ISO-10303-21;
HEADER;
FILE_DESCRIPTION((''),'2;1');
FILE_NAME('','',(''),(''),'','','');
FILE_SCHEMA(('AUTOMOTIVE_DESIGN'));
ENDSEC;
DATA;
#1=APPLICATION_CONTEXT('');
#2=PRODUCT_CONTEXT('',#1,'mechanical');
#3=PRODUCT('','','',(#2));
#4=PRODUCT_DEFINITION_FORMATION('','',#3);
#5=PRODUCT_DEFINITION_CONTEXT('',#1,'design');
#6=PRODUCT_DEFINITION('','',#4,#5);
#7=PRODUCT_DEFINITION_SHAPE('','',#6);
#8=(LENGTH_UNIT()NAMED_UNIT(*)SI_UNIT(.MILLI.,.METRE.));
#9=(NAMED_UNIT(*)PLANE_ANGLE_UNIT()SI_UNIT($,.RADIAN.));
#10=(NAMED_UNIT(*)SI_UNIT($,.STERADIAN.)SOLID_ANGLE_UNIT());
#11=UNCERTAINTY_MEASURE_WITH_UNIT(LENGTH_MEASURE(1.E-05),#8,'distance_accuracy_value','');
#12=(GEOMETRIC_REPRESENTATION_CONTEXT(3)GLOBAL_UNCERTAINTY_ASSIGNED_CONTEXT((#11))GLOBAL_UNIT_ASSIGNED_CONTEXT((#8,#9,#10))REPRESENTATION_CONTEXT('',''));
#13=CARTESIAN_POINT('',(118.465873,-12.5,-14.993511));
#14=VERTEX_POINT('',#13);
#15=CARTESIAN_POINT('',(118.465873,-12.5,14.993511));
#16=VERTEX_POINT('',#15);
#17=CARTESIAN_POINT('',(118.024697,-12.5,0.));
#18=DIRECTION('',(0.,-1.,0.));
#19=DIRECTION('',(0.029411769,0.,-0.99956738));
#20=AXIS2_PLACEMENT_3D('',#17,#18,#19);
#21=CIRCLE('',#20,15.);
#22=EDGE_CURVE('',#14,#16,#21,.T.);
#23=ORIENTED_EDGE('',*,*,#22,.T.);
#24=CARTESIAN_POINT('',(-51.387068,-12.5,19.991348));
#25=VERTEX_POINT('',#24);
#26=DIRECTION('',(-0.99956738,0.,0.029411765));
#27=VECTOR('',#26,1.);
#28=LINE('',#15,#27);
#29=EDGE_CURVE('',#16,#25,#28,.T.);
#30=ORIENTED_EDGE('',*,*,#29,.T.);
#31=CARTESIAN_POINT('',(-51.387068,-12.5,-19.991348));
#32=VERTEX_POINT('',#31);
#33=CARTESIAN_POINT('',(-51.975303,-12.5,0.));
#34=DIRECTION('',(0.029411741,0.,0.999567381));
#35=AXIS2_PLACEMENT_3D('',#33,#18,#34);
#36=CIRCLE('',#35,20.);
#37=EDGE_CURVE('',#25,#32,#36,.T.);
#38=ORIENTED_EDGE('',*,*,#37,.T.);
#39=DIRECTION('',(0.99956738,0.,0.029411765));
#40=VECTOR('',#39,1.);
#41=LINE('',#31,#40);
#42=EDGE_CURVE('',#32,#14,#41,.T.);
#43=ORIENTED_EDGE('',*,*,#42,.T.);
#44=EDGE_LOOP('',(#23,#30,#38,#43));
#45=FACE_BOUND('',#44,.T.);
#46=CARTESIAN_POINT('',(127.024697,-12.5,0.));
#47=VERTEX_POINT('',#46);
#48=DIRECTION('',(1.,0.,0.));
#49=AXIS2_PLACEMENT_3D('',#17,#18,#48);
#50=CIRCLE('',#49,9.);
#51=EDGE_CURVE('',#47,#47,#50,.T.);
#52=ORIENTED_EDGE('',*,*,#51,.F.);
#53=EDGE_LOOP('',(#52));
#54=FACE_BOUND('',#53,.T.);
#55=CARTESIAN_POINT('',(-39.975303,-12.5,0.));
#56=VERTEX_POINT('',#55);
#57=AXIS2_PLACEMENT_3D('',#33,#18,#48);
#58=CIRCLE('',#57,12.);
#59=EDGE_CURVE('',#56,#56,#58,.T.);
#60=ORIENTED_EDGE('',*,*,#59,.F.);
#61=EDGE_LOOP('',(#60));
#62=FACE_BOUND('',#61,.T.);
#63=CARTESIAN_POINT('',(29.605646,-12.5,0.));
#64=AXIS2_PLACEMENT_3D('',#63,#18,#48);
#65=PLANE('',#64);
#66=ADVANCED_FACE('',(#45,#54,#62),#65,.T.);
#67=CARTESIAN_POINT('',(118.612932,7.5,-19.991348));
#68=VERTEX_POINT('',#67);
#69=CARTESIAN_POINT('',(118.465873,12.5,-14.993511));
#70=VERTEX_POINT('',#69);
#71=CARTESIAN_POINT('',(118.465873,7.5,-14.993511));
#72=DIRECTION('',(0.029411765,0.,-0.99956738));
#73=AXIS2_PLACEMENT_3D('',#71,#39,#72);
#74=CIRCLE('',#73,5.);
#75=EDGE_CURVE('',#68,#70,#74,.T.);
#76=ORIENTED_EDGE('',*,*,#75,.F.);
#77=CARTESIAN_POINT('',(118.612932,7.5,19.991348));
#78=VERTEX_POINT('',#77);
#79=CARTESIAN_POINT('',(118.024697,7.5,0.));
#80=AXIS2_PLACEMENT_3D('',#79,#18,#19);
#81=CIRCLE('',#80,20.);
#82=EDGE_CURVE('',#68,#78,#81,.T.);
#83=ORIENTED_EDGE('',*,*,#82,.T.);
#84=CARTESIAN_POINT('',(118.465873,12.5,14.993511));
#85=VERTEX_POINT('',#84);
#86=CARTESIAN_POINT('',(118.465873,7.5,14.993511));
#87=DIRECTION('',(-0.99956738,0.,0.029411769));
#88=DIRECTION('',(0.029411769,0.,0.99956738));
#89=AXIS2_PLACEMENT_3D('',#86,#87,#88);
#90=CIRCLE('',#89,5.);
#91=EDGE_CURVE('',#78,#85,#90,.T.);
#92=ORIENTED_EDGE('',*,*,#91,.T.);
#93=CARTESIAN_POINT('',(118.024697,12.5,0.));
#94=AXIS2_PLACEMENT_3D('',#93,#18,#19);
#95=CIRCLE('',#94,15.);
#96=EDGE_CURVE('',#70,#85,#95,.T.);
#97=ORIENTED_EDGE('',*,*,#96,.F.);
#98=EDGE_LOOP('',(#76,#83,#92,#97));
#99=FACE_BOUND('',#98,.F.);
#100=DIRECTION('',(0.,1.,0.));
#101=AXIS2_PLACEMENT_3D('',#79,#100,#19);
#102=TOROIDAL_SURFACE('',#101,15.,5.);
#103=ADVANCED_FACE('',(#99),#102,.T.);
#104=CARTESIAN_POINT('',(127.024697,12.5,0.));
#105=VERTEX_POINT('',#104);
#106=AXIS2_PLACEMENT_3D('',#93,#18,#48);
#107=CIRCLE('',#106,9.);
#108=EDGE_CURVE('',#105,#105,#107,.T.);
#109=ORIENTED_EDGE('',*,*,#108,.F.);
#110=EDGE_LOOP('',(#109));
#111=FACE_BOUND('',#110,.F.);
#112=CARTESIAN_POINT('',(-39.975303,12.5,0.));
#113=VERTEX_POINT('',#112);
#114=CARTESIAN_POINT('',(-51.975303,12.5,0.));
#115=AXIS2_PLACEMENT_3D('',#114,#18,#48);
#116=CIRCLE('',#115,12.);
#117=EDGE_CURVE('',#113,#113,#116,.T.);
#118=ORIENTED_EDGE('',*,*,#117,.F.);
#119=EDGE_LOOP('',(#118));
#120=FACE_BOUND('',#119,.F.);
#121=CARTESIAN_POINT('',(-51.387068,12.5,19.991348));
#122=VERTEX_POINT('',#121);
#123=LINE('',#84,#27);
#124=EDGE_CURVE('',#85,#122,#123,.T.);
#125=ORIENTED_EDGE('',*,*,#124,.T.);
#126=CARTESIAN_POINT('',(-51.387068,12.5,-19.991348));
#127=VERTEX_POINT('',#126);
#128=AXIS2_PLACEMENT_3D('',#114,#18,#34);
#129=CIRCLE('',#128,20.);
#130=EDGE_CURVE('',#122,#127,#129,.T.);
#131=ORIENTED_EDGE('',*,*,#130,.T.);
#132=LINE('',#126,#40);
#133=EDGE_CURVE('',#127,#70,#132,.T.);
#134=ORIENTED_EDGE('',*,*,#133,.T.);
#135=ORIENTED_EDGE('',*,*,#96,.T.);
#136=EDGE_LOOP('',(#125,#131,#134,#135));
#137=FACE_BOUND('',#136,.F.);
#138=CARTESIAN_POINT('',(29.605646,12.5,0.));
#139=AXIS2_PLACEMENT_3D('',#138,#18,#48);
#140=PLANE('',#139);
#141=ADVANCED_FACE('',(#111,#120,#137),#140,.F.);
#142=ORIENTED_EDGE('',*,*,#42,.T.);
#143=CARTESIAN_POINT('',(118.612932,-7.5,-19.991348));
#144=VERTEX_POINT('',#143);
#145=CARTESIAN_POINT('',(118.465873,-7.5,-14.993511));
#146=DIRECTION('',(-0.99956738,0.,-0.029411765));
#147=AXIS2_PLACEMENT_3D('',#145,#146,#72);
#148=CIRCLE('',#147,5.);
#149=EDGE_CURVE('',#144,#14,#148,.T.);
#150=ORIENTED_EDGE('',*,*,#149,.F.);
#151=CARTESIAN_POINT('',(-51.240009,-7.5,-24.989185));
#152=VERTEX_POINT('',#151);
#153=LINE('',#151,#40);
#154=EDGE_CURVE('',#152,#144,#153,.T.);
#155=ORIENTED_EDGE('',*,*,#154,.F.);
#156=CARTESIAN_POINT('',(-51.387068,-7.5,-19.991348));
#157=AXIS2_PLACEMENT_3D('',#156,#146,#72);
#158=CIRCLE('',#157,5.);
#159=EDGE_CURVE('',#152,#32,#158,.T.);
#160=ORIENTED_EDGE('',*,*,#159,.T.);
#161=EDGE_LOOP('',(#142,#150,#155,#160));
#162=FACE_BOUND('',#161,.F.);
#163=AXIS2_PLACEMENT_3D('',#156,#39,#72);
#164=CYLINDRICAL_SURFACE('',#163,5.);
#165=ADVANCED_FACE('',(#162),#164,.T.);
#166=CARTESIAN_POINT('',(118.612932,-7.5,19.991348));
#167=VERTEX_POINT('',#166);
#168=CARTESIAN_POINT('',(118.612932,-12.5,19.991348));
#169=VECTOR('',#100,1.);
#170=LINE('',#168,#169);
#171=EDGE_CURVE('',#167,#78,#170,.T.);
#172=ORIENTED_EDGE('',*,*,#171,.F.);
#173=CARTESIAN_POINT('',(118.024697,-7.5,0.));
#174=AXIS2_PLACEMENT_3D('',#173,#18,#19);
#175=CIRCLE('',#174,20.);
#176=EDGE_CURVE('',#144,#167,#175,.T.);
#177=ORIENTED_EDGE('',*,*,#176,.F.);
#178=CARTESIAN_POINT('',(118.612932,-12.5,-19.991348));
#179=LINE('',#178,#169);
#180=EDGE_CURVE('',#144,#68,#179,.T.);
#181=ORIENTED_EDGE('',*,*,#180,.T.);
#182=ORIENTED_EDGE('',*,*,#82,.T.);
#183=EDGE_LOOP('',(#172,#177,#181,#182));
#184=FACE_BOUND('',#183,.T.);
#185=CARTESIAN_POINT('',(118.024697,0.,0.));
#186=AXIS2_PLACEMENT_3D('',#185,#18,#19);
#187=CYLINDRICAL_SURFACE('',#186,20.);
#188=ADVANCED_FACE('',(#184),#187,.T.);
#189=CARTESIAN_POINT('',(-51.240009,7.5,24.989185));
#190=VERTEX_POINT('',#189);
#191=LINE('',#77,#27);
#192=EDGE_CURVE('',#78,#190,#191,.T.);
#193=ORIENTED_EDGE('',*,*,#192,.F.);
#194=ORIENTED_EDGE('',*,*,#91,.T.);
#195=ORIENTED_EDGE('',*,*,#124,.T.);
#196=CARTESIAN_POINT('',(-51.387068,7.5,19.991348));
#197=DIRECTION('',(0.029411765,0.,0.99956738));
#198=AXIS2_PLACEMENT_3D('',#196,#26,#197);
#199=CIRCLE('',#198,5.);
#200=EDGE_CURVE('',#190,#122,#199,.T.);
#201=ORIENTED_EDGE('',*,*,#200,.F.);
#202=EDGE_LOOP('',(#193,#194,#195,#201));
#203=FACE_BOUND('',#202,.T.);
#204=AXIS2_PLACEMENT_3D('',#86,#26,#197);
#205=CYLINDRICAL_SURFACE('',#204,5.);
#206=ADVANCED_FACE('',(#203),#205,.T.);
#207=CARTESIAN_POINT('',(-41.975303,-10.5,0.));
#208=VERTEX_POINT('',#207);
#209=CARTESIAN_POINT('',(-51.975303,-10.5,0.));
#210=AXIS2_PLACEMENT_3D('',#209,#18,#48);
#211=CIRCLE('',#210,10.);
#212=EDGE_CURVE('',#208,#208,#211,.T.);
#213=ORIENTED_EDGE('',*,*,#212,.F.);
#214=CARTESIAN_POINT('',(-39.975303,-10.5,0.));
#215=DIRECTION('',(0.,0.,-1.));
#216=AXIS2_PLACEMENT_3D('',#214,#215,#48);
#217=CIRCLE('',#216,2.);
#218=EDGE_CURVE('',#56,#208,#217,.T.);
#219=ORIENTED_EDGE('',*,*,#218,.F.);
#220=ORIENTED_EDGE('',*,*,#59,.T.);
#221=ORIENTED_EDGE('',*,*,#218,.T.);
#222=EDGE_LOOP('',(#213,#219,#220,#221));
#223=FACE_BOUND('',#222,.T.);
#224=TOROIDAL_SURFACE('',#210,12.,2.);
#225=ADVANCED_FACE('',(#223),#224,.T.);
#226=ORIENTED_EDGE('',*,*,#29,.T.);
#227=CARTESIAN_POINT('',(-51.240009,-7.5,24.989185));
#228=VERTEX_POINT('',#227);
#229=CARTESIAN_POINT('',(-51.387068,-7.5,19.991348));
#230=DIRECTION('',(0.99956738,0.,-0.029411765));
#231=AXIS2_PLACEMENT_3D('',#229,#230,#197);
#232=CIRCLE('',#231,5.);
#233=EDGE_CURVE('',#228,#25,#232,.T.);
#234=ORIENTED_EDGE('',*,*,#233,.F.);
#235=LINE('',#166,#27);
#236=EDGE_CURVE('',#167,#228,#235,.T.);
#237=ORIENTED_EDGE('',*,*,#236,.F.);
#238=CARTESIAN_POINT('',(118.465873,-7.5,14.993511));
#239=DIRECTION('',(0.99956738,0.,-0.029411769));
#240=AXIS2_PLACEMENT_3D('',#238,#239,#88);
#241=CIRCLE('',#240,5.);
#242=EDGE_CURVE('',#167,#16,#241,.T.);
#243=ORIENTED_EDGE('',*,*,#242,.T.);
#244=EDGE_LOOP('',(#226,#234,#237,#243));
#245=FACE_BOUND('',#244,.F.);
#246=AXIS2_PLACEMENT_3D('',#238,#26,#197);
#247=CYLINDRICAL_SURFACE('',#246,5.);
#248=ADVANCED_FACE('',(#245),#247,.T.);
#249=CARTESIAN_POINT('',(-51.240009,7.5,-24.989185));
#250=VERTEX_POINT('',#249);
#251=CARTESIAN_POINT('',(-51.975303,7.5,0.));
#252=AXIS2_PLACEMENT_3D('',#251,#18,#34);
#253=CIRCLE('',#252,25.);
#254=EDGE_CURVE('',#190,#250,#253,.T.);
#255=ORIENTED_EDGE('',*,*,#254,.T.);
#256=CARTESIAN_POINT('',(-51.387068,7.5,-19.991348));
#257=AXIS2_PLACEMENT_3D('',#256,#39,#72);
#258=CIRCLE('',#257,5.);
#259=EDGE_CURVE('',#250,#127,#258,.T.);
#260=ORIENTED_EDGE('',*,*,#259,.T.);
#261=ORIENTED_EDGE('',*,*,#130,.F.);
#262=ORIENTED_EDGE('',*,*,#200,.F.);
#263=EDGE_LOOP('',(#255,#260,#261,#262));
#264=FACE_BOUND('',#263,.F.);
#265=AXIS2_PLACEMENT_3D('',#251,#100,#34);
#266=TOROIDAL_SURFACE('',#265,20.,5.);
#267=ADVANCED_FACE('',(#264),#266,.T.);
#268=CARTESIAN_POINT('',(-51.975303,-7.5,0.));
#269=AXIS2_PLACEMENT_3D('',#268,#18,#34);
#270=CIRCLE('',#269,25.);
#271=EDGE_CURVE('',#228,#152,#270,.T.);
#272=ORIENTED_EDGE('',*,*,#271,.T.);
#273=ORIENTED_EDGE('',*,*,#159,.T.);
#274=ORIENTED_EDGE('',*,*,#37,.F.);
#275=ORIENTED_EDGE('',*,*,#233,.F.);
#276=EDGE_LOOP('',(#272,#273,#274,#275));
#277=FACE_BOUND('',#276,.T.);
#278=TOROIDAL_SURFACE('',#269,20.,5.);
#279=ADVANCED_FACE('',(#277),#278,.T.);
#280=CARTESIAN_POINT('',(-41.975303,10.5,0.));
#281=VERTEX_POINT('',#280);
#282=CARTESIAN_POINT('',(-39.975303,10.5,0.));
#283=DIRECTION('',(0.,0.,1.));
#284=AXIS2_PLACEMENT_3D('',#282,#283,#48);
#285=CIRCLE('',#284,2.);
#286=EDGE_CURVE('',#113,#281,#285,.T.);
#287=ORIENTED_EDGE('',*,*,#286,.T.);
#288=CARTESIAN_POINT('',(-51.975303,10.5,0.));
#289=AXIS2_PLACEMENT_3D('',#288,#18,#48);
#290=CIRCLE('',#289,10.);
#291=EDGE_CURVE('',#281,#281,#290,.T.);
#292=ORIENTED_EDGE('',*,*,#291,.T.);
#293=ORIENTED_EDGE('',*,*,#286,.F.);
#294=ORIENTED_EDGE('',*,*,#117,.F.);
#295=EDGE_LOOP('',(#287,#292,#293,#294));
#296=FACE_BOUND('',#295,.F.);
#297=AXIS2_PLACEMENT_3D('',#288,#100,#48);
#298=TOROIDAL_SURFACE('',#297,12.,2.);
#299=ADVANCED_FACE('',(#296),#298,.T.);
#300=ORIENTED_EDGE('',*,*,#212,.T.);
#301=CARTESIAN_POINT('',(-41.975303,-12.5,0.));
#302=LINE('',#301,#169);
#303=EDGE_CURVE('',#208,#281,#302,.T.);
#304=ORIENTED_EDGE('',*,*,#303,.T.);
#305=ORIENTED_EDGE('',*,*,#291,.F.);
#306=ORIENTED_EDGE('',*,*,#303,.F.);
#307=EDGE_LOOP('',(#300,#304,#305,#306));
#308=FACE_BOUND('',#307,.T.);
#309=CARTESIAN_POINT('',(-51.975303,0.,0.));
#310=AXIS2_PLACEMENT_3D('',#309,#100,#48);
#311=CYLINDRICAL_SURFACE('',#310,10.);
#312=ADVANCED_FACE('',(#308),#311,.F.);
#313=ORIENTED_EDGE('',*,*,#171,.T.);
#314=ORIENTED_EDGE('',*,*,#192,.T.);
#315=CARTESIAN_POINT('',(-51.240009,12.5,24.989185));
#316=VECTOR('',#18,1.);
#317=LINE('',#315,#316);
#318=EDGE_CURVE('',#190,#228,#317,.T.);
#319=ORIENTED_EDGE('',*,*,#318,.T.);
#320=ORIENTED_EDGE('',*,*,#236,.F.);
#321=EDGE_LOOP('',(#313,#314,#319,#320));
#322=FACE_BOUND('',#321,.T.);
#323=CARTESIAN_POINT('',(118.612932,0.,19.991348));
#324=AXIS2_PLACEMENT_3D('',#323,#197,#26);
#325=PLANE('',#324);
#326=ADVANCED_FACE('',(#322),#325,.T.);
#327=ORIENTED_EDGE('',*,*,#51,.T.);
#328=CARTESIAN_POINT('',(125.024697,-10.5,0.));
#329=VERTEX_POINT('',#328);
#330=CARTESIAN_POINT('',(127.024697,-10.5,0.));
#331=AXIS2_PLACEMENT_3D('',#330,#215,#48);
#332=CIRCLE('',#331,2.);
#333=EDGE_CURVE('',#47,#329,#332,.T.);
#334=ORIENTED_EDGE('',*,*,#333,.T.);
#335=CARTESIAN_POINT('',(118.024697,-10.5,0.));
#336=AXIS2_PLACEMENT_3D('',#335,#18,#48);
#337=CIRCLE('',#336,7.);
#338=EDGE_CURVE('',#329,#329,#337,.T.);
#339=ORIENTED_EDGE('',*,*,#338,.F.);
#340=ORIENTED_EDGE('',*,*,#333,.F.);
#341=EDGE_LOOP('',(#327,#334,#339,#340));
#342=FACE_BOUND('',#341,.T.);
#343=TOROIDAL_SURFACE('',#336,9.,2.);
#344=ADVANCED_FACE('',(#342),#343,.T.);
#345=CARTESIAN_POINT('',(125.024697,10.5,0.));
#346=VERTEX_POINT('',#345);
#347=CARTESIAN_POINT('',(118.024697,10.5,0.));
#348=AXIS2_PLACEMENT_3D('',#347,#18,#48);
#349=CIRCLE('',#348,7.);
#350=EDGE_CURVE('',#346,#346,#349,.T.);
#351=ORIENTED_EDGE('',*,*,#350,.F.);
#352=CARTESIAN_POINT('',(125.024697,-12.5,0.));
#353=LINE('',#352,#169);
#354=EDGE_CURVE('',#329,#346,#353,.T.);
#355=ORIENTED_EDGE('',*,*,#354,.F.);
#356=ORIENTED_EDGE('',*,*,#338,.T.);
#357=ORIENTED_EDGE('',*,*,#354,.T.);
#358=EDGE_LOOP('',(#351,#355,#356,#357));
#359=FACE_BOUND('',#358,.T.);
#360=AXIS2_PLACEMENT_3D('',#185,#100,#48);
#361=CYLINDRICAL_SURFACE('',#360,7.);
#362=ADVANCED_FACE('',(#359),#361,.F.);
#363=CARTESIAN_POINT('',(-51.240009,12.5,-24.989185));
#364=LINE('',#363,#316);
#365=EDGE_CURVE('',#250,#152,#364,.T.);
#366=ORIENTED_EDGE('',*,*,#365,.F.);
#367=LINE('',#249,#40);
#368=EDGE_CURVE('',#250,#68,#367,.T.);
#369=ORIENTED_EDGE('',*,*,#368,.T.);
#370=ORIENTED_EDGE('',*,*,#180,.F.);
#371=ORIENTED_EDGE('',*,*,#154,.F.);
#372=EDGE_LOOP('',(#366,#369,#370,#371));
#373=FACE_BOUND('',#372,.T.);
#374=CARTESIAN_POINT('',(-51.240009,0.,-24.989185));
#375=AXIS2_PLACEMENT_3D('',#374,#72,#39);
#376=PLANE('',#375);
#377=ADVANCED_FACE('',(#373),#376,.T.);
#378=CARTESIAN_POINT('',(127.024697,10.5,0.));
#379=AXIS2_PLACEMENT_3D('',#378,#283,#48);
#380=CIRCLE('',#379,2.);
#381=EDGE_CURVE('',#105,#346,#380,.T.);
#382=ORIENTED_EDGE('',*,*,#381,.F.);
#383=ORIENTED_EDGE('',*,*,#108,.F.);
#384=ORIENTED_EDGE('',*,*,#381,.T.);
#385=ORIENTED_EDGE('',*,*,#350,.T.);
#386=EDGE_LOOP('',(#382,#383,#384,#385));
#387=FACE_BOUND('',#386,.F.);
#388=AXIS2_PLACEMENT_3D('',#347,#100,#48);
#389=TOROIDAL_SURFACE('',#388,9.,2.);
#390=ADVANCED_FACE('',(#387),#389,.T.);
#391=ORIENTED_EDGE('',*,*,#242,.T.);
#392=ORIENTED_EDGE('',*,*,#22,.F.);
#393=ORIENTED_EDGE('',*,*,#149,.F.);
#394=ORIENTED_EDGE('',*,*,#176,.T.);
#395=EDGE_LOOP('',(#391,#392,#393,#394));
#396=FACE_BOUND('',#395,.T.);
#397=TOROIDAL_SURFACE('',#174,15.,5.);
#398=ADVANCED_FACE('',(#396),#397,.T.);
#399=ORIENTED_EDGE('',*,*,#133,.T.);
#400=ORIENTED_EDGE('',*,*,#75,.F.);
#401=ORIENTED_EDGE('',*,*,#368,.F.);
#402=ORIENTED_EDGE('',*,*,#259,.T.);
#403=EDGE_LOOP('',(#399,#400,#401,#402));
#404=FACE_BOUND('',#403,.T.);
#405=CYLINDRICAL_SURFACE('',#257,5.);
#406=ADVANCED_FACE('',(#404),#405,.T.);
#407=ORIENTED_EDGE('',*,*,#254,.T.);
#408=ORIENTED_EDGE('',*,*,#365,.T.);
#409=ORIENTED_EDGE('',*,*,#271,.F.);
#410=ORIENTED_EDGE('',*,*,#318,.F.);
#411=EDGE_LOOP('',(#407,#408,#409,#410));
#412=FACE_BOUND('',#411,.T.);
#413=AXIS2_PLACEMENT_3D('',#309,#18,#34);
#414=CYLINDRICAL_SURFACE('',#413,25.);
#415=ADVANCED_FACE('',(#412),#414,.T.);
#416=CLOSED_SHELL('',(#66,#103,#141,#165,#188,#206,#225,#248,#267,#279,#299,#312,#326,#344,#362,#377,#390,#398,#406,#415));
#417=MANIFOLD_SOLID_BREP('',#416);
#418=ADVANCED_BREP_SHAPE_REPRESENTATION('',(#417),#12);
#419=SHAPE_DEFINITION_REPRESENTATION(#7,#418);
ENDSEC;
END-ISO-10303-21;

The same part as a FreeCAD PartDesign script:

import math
import FreeCAD as App
import Part
import Sketcher

V = App.Vector


def edges_at(feature, points):
    """Names of the edges that pass closest to the given points."""
    edges = feature.Shape.Edges
    near = lambda p: min(range(len(edges)), key=lambda i: edges[i].distToShape(Part.Vertex(*p))[0])
    return sorted({f"Edge{near(p) + 1}" for p in points})

doc = App.newDocument("Part")
body = doc.addObject("PartDesign::Body", "Body")

# Sketch on XZ plane
sketch1 = doc.addObject("Sketcher::SketchObject", "Sketch")
body.addObject(sketch1)
sketch1.AttachmentSupport = (doc.XZ_Plane, [""])
sketch1.MapMode = "FlatFace"
sketch1.addGeometry([
    Part.LineSegment(V(119, 20, 0), V(-51, 25, 0)),  # 0
    Part.ArcOfCircle(Part.Circle(V(-52, 0, 0), V(0, 0, 1), 25), math.radians(88), math.radians(272)),  # 1
    Part.LineSegment(V(-51, -25, 0), V(119, -20, 0)),  # 2
    Part.ArcOfCircle(Part.Circle(V(118, 0, 0), V(0, 0, 1), 20), math.radians(-88), math.radians(88)),  # 3
    Part.Circle(V(-52, 0, 0), V(0, 0, 1), 10),  # 4
    Part.Circle(V(118, 0, 0), V(0, 0, 1), 7),  # 5
], False)
sketch1.addConstraint([
    Sketcher.Constraint("Tangent", 0, 2, 1, 1),
    Sketcher.Constraint("Tangent", 1, 2, 2, 1),
    Sketcher.Constraint("Tangent", 2, 2, 3, 1),
    Sketcher.Constraint("Tangent", 3, 2, 0, 1),
    Sketcher.Constraint("Coincident", 4, 3, 1, 3),
    Sketcher.Constraint("Coincident", 5, 3, 3, 3),
    Sketcher.Constraint("Symmetric", 0, 2, 1, 2, -1),
    Sketcher.Constraint("Diameter", 4, 20.0),
    Sketcher.Constraint("Diameter", 5, 14.0),
    Sketcher.Constraint("Radius", 1, 25.0),
    Sketcher.Constraint("Radius", 3, 20.0),
    Sketcher.Constraint("DistanceX", 1, 3, 3, 3, 169.999999),
    Sketcher.Constraint("DistanceX", 0, 2, -1, 1, 51.240009),
])
pad1 = doc.addObject("PartDesign::Pad", "Pad")
body.addObject(pad1)
pad1.Profile = sketch1
pad1.Length = 25
pad1.Midplane = True
doc.recompute()

fillet = doc.addObject("PartDesign::Fillet", "Fillet")
body.addObject(fillet)
fillet.Base = (pad1, edges_at(pad1, [
    (33.686, -12.5, -22.49),
    (33.686, -12.5, 22.49),
    (33.686, 12.5, -22.49),
    (-76.975, 12.5, 0),
]))
fillet.Radius = 5
doc.recompute()

fillet2 = doc.addObject("PartDesign::Fillet", "Fillet001")
body.addObject(fillet2)
fillet2.Base = (fillet, edges_at(fillet, [
    (-61.975, -12.5, 0),
    (-61.975, 12.5, 0),
    (111.025, -12.5, 0),
    (125.025, 0, 0),
    (111.025, 12.5, 0),
]))
fillet2.Radius = 2

doc.recompute()
